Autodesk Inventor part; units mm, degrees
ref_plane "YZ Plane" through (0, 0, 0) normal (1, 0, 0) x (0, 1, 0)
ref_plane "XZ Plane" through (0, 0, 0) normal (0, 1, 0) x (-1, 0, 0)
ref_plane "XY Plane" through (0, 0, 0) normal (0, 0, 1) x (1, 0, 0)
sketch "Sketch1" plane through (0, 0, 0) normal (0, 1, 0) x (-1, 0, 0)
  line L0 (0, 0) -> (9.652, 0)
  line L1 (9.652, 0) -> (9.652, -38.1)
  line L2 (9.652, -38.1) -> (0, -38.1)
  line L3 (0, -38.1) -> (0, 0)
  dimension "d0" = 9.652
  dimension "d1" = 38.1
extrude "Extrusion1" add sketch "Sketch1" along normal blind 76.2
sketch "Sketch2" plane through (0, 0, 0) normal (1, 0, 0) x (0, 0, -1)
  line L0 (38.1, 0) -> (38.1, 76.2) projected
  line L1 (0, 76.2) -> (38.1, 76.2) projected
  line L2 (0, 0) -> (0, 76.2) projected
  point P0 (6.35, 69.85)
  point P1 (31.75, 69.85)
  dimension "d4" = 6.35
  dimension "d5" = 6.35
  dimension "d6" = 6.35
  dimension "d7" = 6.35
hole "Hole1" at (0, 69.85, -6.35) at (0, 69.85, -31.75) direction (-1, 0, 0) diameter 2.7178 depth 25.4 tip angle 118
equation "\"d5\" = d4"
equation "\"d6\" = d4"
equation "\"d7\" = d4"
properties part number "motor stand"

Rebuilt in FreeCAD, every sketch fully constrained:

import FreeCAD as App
import Part
import Sketcher
from FreeCAD import Vector
Q = App.Units.Quantity

doc = App.newDocument("Part")
body = doc.addObject("PartDesign::Body", "Body")

# Sketch on XZ plane
sketch1 = body.newObject("Sketcher::SketchObject", "Sketch")
sketch1.AttachmentSupport = (doc.getObject("XZ_Plane"), [""])
sketch1.MapMode = "FlatFace"
sketch1.addGeometry([
    Part.LineSegment(Vector(-10, 0, 0), Vector(0, 0, 0)),
    Part.LineSegment(Vector(0, 0, 0), Vector(0, -38, 0)),
    Part.LineSegment(Vector(0, -38, 0), Vector(-10, -38, 0)),
    Part.LineSegment(Vector(-10, -38, 0), Vector(-10, 0, 0)),
], False)
sketch1.addConstraint([
    Sketcher.Constraint("Coincident", 0, 2, 1, 1),
    Sketcher.Constraint("Coincident", 1, 2, 2, 1),
    Sketcher.Constraint("Coincident", 2, 2, 3, 1),
    Sketcher.Constraint("Coincident", 3, 2, 0, 1),
    Sketcher.Constraint("Horizontal", 0),
    Sketcher.Constraint("Vertical", 1),
    Sketcher.Constraint("Horizontal", 2),
    Sketcher.Constraint("Vertical", 3),
    Sketcher.Constraint("Coincident", 0, 2, -1, 1),
    Sketcher.Constraint("DistanceY", 1, 2, 1, 1, Q("1.5 in")),
    Sketcher.Constraint("DistanceX", 0, 1, 0, 2, Q("0.38 in")),
])
pad1 = body.newObject("PartDesign::Pad", "Pad")
pad1.Profile = sketch1
pad1.Length = Q("3 in")
pad1.Reversed = True

# Sketch on YZ plane
sketch2 = body.newObject("Sketcher::SketchObject", "Sketch001")
sketch2.AttachmentSupport = (doc.getObject("YZ_Plane"), [""])
sketch2.MapMode = "FlatFace"
sketch2.addGeometry([
    Part.Circle(Vector(69.8, -6.3, 0), Vector(0, 0, 1), 1.4),
    Part.Circle(Vector(69.8, -31.8, 0), Vector(0, 0, 1), 1.4),
], False)
sketch2.addConstraint([
    Sketcher.Constraint("Equal", 0, 1),
    Sketcher.Constraint("Vertical", 0, 3, 1, 3),
    Sketcher.Constraint("Diameter", 0, Q("0.107 in")),
    Sketcher.Constraint("DistanceY", 1, 3, 0, 3, Q("1 in")),
    Sketcher.Constraint("DistanceX", -1, 1, 0, 3, Q("2.75 in")),
    Sketcher.Constraint("DistanceY", 0, 3, -1, 1, Q("0.25 in")),
])
doc.recompute()
hole = body.newObject("PartDesign::Hole", "Hole")
hole.Profile = sketch2
hole.ThreadType = "None"
hole.Diameter = Q("0.107 in")
hole.DepthType = "Dimension"
hole.Depth = Q("1 in")
hole.DrillPoint = "Angled"
hole.DrillPointAngle = 118

doc.recompute()
